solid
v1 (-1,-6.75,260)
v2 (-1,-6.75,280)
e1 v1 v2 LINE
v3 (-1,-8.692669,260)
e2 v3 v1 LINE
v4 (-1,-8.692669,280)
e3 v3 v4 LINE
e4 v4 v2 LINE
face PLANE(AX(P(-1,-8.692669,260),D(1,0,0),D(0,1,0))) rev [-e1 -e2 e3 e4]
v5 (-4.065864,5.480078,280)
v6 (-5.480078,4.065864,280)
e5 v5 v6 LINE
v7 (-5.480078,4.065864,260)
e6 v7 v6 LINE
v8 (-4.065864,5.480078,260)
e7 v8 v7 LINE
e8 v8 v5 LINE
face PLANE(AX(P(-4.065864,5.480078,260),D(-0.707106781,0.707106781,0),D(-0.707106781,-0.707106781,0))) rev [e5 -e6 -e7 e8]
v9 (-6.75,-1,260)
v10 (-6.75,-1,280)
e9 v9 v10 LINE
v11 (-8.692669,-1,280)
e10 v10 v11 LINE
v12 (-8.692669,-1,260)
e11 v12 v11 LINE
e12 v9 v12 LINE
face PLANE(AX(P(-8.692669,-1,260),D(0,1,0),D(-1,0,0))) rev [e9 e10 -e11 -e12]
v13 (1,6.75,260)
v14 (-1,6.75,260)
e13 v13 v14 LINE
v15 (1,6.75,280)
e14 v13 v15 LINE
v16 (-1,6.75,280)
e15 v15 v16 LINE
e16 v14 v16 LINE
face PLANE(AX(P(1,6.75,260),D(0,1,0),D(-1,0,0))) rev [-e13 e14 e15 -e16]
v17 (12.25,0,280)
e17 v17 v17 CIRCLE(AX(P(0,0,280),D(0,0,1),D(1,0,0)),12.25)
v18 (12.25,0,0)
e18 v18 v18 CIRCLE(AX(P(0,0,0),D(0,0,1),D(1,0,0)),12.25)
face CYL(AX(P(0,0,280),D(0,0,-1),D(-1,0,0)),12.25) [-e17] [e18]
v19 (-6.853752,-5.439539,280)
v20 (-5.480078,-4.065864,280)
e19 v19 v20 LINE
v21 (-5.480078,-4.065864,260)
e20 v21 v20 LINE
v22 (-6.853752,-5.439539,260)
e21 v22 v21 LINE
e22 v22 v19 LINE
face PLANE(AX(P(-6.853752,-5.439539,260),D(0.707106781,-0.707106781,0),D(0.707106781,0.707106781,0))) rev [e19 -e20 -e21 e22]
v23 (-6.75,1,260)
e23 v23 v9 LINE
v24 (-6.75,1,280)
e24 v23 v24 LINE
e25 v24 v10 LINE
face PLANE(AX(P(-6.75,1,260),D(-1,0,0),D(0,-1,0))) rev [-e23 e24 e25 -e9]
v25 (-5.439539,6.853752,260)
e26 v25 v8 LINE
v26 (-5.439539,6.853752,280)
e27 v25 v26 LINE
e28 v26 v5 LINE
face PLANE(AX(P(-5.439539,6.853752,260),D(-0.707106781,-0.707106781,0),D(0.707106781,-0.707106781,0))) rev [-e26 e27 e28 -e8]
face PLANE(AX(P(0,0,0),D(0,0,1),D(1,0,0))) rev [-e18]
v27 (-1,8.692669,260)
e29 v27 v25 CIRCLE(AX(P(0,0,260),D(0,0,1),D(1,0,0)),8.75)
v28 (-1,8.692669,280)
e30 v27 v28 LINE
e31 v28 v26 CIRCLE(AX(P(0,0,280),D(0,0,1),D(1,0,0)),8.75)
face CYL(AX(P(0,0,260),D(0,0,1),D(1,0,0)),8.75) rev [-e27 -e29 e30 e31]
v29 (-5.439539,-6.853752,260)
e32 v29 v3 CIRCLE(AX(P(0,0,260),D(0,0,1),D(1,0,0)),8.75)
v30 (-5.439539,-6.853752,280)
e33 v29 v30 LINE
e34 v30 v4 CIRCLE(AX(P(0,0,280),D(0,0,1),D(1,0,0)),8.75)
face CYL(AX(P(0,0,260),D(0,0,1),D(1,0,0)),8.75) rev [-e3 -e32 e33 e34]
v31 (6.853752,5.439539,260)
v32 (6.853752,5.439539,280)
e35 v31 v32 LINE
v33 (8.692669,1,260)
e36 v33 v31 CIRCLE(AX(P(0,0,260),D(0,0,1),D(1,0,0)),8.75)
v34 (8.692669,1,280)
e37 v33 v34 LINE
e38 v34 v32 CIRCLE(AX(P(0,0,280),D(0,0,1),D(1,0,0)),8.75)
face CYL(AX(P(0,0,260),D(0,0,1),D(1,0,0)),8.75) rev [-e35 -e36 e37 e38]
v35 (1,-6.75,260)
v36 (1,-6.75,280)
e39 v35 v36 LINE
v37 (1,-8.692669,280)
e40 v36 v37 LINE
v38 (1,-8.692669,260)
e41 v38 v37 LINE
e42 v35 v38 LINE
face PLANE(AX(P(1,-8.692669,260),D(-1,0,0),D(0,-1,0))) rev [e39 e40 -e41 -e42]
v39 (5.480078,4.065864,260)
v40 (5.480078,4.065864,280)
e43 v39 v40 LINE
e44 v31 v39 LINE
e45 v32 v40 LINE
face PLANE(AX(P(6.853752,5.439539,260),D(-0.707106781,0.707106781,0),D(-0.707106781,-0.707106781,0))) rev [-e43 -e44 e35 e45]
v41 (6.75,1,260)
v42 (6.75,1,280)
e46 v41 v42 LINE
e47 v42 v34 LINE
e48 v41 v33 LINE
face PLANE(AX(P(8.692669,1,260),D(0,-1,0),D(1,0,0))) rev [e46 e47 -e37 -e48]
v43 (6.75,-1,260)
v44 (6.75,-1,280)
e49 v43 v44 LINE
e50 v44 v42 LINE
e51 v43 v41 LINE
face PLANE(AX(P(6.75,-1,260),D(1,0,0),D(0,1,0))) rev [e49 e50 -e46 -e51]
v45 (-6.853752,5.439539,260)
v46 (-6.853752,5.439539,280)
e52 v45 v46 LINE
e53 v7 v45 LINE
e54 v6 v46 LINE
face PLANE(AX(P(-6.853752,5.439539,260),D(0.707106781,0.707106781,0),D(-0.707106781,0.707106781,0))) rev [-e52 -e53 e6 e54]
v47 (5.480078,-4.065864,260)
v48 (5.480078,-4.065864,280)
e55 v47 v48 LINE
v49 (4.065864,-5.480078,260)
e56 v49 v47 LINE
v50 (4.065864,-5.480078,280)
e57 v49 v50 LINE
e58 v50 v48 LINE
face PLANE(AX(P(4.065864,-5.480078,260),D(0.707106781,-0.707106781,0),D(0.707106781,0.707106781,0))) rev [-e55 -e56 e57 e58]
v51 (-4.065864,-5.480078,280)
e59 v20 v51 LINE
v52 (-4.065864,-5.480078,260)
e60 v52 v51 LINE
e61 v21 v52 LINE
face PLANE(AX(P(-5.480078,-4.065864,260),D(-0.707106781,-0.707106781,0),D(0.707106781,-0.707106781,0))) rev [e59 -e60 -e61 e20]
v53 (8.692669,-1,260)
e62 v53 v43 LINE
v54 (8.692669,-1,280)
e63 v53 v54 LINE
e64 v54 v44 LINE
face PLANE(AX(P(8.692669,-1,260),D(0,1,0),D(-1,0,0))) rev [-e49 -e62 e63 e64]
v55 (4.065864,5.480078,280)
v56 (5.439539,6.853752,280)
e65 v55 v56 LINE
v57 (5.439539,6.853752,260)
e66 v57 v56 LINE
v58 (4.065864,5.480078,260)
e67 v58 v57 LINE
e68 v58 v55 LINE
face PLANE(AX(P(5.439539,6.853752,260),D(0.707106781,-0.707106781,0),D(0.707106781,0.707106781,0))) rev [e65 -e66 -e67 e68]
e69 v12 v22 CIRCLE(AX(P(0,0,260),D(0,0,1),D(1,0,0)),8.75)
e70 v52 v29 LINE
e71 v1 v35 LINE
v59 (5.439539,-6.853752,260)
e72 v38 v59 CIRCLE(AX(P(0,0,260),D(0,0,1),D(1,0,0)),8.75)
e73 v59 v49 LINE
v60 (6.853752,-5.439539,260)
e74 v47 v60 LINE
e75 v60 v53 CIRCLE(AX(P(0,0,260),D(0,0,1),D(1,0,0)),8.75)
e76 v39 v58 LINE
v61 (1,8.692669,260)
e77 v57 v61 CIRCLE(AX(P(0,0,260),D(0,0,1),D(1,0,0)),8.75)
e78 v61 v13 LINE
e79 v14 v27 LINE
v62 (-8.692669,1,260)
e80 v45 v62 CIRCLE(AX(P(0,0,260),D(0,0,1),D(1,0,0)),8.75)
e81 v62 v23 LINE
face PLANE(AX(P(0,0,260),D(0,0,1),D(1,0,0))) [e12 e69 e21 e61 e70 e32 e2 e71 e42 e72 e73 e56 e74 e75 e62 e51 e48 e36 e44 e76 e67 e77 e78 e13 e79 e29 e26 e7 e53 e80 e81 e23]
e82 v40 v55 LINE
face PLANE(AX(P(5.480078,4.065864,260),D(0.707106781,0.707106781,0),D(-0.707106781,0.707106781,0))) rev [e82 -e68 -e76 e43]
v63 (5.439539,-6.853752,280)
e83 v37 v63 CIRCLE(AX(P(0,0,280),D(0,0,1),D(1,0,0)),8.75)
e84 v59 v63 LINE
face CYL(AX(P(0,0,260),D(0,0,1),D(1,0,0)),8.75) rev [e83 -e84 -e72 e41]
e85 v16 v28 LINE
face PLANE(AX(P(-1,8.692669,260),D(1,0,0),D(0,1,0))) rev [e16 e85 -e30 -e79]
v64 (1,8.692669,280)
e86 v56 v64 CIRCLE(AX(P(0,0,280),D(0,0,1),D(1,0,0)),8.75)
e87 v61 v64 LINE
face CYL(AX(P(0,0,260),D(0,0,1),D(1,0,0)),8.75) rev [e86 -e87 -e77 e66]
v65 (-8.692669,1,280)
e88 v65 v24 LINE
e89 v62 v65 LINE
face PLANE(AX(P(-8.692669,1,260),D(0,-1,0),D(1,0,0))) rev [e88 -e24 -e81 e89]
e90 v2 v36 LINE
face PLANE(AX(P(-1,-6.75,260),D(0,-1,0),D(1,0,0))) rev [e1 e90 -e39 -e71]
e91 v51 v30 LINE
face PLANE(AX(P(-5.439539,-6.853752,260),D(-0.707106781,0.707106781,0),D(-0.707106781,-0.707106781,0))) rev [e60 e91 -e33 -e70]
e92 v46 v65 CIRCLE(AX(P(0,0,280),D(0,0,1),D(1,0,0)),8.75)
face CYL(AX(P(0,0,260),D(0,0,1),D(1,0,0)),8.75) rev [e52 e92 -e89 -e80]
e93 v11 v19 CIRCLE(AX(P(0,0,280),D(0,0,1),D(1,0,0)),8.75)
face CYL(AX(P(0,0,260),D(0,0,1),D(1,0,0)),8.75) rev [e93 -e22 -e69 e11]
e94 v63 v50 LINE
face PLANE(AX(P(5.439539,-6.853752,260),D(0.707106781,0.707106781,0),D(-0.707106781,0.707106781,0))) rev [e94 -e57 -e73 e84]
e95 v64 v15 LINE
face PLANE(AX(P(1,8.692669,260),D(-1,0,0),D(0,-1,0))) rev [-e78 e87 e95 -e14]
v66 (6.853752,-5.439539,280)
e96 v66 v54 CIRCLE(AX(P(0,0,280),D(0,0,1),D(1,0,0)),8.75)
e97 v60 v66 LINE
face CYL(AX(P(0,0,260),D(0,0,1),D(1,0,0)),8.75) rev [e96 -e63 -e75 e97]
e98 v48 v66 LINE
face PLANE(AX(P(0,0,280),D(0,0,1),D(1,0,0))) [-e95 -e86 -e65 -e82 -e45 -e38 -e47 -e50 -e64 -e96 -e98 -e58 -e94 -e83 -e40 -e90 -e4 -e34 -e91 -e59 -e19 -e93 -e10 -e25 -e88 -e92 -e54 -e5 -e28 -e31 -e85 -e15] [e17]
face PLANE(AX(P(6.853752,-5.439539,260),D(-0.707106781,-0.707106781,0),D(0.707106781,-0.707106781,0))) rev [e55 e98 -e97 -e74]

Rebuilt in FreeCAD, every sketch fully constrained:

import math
import FreeCAD as App
import Part
import Sketcher
from FreeCAD import Vector
Q = App.Units.Quantity

doc = App.newDocument("Part")
body = doc.addObject("PartDesign::Body", "Body")

# Sketch on XY plane
sketch1 = body.newObject("Sketcher::SketchObject", "Sketch")
sketch1.AttachmentSupport = (doc.getObject("XY_Plane"), [""])
sketch1.MapMode = "FlatFace"
sketch1.addGeometry(Part.Circle(Vector(0, 0, 0), Vector(0, 0, 1), 12), False)
sketch1.addConstraint([
    Sketcher.Constraint("Coincident", 0, 3, -1, 1),
    Sketcher.Constraint("Diameter", 0, Q("24.5 mm")),
])
pad1 = body.newObject("PartDesign::Pad", "Pad")
pad1.Profile = sketch1
pad1.Length = 280

# Sketch on XY plane
sketch2 = body.newObject("Sketcher::SketchObject", "Sketch001")
sketch2.AttachmentSupport = (doc.getObject("XY_Plane"), [""])
sketch2.MapMode = "FlatFace"
sketch2.AttachmentOffset = App.Placement(Vector(0, 0, 280), App.Rotation())
sketch2.addGeometry([
    Part.LineSegment(Vector(1, 6.8, 0), Vector(-1, 6.8, 0)),  # 0
    Part.LineSegment(Vector(-1, 6.8, 0), Vector(-1, 8.7, 0)),  # 1
    Part.ArcOfCircle(Part.Circle(Vector(0, 0, 0), Vector(0, 0, 1), 8.8), math.radians(97), math.radians(128)),  # 2
    Part.LineSegment(Vector(-5.4, 6.9, 0), Vector(-4.1, 5.5, 0)),  # 3
    Part.LineSegment(Vector(-4.1, 5.5, 0), Vector(-5.5, 4.1, 0)),  # 4
    Part.LineSegment(Vector(-5.5, 4.1, 0), Vector(-6.9, 5.4, 0)),  # 5
    Part.ArcOfCircle(Part.Circle(Vector(0, 0, 0), Vector(0, 0, 1), 8.8), math.radians(142), math.radians(173)),  # 6
    Part.LineSegment(Vector(-8.7, 1, 0), Vector(-6.8, 1, 0)),  # 7
    Part.LineSegment(Vector(-6.8, 1, 0), Vector(-6.8, -1, 0)),  # 8
    Part.LineSegment(Vector(-6.8, -1, 0), Vector(-8.7, -1, 0)),  # 9
    Part.ArcOfCircle(Part.Circle(Vector(0, 0, 0), Vector(0, 0, 1), 8.8), math.radians(-173), math.radians(-142)),  # 10
    Part.LineSegment(Vector(-6.9, -5.4, 0), Vector(-5.5, -4.1, 0)),  # 11
    Part.LineSegment(Vector(-5.5, -4.1, 0), Vector(-4.1, -5.5, 0)),  # 12
    Part.LineSegment(Vector(-4.1, -5.5, 0), Vector(-5.4, -6.9, 0)),  # 13
    Part.ArcOfCircle(Part.Circle(Vector(0, 0, 0), Vector(0, 0, 1), 8.8), math.radians(-128), math.radians(-97)),  # 14
    Part.LineSegment(Vector(-1, -8.7, 0), Vector(-1, -6.8, 0)),  # 15
    Part.LineSegment(Vector(-1, -6.8, 0), Vector(1, -6.8, 0)),  # 16
    Part.LineSegment(Vector(1, -6.8, 0), Vector(1, -8.7, 0)),  # 17
    Part.ArcOfCircle(Part.Circle(Vector(0, 0, 0), Vector(0, 0, 1), 8.8), math.radians(-83), math.radians(-52)),  # 18
    Part.LineSegment(Vector(5.4, -6.9, 0), Vector(4.1, -5.5, 0)),  # 19
    Part.LineSegment(Vector(4.1, -5.5, 0), Vector(5.5, -4.1, 0)),  # 20
    Part.LineSegment(Vector(5.5, -4.1, 0), Vector(6.9, -5.4, 0)),  # 21
    Part.ArcOfCircle(Part.Circle(Vector(0, 0, 0), Vector(0, 0, 1), 8.8), math.radians(-38), math.radians(-7)),  # 22
    Part.LineSegment(Vector(8.7, -1, 0), Vector(6.8, -1, 0)),  # 23
    Part.LineSegment(Vector(6.8, -1, 0), Vector(6.8, 1, 0)),  # 24
    Part.LineSegment(Vector(6.8, 1, 0), Vector(8.7, 1, 0)),  # 25
    Part.ArcOfCircle(Part.Circle(Vector(0, 0, 0), Vector(0, 0, 1), 8.8), math.radians(7), math.radians(38)),  # 26
    Part.LineSegment(Vector(6.9, 5.4, 0), Vector(5.5, 4.1, 0)),  # 27
    Part.LineSegment(Vector(5.5, 4.1, 0), Vector(4.1, 5.5, 0)),  # 28
    Part.LineSegment(Vector(4.1, 5.5, 0), Vector(5.4, 6.9, 0)),  # 29
    Part.ArcOfCircle(Part.Circle(Vector(0, 0, 0), Vector(0, 0, 1), 8.8), math.radians(52), math.radians(83)),  # 30
    Part.LineSegment(Vector(1, 8.7, 0), Vector(1, 6.8, 0)),  # 31
], False)
sketch2.addConstraint([
    Sketcher.Constraint("Coincident", 0, 2, 1, 1),
    Sketcher.Constraint("Coincident", 1, 2, 2, 1),
    Sketcher.Constraint("Coincident", 2, 2, 3, 1),
    Sketcher.Constraint("Coincident", 3, 2, 4, 1),
    Sketcher.Constraint("Coincident", 4, 2, 5, 1),
    Sketcher.Constraint("Coincident", 5, 2, 6, 1),
    Sketcher.Constraint("Coincident", 6, 2, 7, 1),
    Sketcher.Constraint("Coincident", 7, 2, 8, 1),
    Sketcher.Constraint("Coincident", 8, 2, 9, 1),
    Sketcher.Constraint("Coincident", 9, 2, 10, 1),
    Sketcher.Constraint("Coincident", 10, 2, 11, 1),
    Sketcher.Constraint("Coincident", 11, 2, 12, 1),
    Sketcher.Constraint("Coincident", 12, 2, 13, 1),
    Sketcher.Constraint("Coincident", 13, 2, 14, 1),
    Sketcher.Constraint("Coincident", 14, 2, 15, 1),
    Sketcher.Constraint("Coincident", 15, 2, 16, 1),
    Sketcher.Constraint("Coincident", 16, 2, 17, 1),
    Sketcher.Constraint("Coincident", 17, 2, 18, 1),
    Sketcher.Constraint("Coincident", 18, 2, 19, 1),
    Sketcher.Constraint("Coincident", 19, 2, 20, 1),
    Sketcher.Constraint("Coincident", 20, 2, 21, 1),
    Sketcher.Constraint("Coincident", 21, 2, 22, 1),
    Sketcher.Constraint("Coincident", 22, 2, 23, 1),
    Sketcher.Constraint("Coincident", 23, 2, 24, 1),
    Sketcher.Constraint("Coincident", 24, 2, 25, 1),
    Sketcher.Constraint("Coincident", 25, 2, 26, 1),
    Sketcher.Constraint("Coincident", 26, 2, 27, 1),
    Sketcher.Constraint("Coincident", 27, 2, 28, 1),
    Sketcher.Constraint("Coincident", 28, 2, 29, 1),
    Sketcher.Constraint("Coincident", 29, 2, 30, 1),
    Sketcher.Constraint("Coincident", 30, 2, 31, 1),
    Sketcher.Constraint("Coincident", 31, 2, 0, 1),
    Sketcher.Constraint("Horizontal", 0),
    Sketcher.Constraint("Vertical", 1),
    Sketcher.Constraint("Horizontal", 7),
    Sketcher.Constraint("Vertical", 8),
    Sketcher.Constraint("Horizontal", 9),
    Sketcher.Constraint("Vertical", 15),
    Sketcher.Constraint("Horizontal", 16),
    Sketcher.Constraint("Vertical", 17),
    Sketcher.Constraint("Horizontal", 23),
    Sketcher.Constraint("Vertical", 24),
    Sketcher.Constraint("Horizontal", 25),
    Sketcher.Constraint("Vertical", 31),
    Sketcher.Constraint("Coincident", 2, 3, -1, 1),
    Sketcher.Constraint("Coincident", 6, 3, -1, 1),
    Sketcher.Constraint("Coincident", 10, 3, -1, 1),
    Sketcher.Constraint("Coincident", 14, 3, -1, 1),
    Sketcher.Constraint("Coincident", 18, 3, -1, 1),
    Sketcher.Constraint("Coincident", 22, 3, -1, 1),
    Sketcher.Constraint("Coincident", 26, 3, -1, 1),
    Sketcher.Constraint("Coincident", 30, 3, -1, 1),
    Sketcher.Constraint("Equal", 2, 6),
    Sketcher.Constraint("Equal", 6, 10),
    Sketcher.Constraint("Equal", 10, 14),
    Sketcher.Constraint("Equal", 14, 18),
    Sketcher.Constraint("Equal", 18, 22),
    Sketcher.Constraint("Equal", 22, 26),
    Sketcher.Constraint("Equal", 26, 30),
    Sketcher.Constraint("Symmetric", 0, 2, 16, 2, -1, 1),
    Sketcher.Constraint("Symmetric", 3, 2, 19, 2, -1, 1),
    Sketcher.Constraint("Symmetric", 4, 2, 20, 2, -1, 1),
    Sketcher.Constraint("Symmetric", 7, 2, 23, 2, -1, 1),
    Sketcher.Constraint("Symmetric", 11, 2, 27, 2, -1, 1),
    Sketcher.Constraint("Symmetric", 12, 2, 28, 2, -1, 1),
    Sketcher.Constraint("Symmetric", 12, 2, 19, 2, -2),
    Sketcher.Constraint("Symmetric", 11, 2, 20, 2, -2),
    Sketcher.Constraint("Perpendicular", 3, 4),
    Sketcher.Constraint("Perpendicular", 4, 5),
    Sketcher.Constraint("Perpendicular", 5, 11),
    Sketcher.Constraint("Perpendicular", 11, 12),
    Sketcher.Constraint("Perpendicular", 12, 13),
    Sketcher.Constraint("Perpendicular", 13, 19),
    Sketcher.Constraint("Perpendicular", 20, 21),
    Sketcher.Constraint("Perpendicular", 21, 27),
    Sketcher.Constraint("Perpendicular", 28, 29),
    Sketcher.Constraint("Horizontal", 14, 2, 17, 2),
    Sketcher.Constraint("Horizontal", 9, 2, 22, 2),
    Sketcher.Constraint("Horizontal", 7, 2, 24, 2),
    Sketcher.Constraint("Horizontal", 1, 2, 30, 2),
    Sketcher.Constraint("Equal", 25, 1),
    Sketcher.Constraint("Equal", 16, 8),
    Sketcher.Constraint("Equal", 3, 5),
    Sketcher.Constraint("DistanceX", 0, 2, 0, 1, Q("2 mm")),
    Sketcher.Constraint("Radius", 2, Q("8.75 mm")),
    Sketcher.Constraint("Distance", 4, Q("2 mm")),
    Sketcher.Constraint("DistanceY", -1, 1, 0, 2, Q("6.75 mm")),
    Sketcher.Constraint("Distance", 3, Q("1.942669 mm")),
])
pocket1 = body.newObject("PartDesign::Pocket", "Pocket")
pocket1.Profile = sketch2
pocket1.Length = 20

doc.recompute()
